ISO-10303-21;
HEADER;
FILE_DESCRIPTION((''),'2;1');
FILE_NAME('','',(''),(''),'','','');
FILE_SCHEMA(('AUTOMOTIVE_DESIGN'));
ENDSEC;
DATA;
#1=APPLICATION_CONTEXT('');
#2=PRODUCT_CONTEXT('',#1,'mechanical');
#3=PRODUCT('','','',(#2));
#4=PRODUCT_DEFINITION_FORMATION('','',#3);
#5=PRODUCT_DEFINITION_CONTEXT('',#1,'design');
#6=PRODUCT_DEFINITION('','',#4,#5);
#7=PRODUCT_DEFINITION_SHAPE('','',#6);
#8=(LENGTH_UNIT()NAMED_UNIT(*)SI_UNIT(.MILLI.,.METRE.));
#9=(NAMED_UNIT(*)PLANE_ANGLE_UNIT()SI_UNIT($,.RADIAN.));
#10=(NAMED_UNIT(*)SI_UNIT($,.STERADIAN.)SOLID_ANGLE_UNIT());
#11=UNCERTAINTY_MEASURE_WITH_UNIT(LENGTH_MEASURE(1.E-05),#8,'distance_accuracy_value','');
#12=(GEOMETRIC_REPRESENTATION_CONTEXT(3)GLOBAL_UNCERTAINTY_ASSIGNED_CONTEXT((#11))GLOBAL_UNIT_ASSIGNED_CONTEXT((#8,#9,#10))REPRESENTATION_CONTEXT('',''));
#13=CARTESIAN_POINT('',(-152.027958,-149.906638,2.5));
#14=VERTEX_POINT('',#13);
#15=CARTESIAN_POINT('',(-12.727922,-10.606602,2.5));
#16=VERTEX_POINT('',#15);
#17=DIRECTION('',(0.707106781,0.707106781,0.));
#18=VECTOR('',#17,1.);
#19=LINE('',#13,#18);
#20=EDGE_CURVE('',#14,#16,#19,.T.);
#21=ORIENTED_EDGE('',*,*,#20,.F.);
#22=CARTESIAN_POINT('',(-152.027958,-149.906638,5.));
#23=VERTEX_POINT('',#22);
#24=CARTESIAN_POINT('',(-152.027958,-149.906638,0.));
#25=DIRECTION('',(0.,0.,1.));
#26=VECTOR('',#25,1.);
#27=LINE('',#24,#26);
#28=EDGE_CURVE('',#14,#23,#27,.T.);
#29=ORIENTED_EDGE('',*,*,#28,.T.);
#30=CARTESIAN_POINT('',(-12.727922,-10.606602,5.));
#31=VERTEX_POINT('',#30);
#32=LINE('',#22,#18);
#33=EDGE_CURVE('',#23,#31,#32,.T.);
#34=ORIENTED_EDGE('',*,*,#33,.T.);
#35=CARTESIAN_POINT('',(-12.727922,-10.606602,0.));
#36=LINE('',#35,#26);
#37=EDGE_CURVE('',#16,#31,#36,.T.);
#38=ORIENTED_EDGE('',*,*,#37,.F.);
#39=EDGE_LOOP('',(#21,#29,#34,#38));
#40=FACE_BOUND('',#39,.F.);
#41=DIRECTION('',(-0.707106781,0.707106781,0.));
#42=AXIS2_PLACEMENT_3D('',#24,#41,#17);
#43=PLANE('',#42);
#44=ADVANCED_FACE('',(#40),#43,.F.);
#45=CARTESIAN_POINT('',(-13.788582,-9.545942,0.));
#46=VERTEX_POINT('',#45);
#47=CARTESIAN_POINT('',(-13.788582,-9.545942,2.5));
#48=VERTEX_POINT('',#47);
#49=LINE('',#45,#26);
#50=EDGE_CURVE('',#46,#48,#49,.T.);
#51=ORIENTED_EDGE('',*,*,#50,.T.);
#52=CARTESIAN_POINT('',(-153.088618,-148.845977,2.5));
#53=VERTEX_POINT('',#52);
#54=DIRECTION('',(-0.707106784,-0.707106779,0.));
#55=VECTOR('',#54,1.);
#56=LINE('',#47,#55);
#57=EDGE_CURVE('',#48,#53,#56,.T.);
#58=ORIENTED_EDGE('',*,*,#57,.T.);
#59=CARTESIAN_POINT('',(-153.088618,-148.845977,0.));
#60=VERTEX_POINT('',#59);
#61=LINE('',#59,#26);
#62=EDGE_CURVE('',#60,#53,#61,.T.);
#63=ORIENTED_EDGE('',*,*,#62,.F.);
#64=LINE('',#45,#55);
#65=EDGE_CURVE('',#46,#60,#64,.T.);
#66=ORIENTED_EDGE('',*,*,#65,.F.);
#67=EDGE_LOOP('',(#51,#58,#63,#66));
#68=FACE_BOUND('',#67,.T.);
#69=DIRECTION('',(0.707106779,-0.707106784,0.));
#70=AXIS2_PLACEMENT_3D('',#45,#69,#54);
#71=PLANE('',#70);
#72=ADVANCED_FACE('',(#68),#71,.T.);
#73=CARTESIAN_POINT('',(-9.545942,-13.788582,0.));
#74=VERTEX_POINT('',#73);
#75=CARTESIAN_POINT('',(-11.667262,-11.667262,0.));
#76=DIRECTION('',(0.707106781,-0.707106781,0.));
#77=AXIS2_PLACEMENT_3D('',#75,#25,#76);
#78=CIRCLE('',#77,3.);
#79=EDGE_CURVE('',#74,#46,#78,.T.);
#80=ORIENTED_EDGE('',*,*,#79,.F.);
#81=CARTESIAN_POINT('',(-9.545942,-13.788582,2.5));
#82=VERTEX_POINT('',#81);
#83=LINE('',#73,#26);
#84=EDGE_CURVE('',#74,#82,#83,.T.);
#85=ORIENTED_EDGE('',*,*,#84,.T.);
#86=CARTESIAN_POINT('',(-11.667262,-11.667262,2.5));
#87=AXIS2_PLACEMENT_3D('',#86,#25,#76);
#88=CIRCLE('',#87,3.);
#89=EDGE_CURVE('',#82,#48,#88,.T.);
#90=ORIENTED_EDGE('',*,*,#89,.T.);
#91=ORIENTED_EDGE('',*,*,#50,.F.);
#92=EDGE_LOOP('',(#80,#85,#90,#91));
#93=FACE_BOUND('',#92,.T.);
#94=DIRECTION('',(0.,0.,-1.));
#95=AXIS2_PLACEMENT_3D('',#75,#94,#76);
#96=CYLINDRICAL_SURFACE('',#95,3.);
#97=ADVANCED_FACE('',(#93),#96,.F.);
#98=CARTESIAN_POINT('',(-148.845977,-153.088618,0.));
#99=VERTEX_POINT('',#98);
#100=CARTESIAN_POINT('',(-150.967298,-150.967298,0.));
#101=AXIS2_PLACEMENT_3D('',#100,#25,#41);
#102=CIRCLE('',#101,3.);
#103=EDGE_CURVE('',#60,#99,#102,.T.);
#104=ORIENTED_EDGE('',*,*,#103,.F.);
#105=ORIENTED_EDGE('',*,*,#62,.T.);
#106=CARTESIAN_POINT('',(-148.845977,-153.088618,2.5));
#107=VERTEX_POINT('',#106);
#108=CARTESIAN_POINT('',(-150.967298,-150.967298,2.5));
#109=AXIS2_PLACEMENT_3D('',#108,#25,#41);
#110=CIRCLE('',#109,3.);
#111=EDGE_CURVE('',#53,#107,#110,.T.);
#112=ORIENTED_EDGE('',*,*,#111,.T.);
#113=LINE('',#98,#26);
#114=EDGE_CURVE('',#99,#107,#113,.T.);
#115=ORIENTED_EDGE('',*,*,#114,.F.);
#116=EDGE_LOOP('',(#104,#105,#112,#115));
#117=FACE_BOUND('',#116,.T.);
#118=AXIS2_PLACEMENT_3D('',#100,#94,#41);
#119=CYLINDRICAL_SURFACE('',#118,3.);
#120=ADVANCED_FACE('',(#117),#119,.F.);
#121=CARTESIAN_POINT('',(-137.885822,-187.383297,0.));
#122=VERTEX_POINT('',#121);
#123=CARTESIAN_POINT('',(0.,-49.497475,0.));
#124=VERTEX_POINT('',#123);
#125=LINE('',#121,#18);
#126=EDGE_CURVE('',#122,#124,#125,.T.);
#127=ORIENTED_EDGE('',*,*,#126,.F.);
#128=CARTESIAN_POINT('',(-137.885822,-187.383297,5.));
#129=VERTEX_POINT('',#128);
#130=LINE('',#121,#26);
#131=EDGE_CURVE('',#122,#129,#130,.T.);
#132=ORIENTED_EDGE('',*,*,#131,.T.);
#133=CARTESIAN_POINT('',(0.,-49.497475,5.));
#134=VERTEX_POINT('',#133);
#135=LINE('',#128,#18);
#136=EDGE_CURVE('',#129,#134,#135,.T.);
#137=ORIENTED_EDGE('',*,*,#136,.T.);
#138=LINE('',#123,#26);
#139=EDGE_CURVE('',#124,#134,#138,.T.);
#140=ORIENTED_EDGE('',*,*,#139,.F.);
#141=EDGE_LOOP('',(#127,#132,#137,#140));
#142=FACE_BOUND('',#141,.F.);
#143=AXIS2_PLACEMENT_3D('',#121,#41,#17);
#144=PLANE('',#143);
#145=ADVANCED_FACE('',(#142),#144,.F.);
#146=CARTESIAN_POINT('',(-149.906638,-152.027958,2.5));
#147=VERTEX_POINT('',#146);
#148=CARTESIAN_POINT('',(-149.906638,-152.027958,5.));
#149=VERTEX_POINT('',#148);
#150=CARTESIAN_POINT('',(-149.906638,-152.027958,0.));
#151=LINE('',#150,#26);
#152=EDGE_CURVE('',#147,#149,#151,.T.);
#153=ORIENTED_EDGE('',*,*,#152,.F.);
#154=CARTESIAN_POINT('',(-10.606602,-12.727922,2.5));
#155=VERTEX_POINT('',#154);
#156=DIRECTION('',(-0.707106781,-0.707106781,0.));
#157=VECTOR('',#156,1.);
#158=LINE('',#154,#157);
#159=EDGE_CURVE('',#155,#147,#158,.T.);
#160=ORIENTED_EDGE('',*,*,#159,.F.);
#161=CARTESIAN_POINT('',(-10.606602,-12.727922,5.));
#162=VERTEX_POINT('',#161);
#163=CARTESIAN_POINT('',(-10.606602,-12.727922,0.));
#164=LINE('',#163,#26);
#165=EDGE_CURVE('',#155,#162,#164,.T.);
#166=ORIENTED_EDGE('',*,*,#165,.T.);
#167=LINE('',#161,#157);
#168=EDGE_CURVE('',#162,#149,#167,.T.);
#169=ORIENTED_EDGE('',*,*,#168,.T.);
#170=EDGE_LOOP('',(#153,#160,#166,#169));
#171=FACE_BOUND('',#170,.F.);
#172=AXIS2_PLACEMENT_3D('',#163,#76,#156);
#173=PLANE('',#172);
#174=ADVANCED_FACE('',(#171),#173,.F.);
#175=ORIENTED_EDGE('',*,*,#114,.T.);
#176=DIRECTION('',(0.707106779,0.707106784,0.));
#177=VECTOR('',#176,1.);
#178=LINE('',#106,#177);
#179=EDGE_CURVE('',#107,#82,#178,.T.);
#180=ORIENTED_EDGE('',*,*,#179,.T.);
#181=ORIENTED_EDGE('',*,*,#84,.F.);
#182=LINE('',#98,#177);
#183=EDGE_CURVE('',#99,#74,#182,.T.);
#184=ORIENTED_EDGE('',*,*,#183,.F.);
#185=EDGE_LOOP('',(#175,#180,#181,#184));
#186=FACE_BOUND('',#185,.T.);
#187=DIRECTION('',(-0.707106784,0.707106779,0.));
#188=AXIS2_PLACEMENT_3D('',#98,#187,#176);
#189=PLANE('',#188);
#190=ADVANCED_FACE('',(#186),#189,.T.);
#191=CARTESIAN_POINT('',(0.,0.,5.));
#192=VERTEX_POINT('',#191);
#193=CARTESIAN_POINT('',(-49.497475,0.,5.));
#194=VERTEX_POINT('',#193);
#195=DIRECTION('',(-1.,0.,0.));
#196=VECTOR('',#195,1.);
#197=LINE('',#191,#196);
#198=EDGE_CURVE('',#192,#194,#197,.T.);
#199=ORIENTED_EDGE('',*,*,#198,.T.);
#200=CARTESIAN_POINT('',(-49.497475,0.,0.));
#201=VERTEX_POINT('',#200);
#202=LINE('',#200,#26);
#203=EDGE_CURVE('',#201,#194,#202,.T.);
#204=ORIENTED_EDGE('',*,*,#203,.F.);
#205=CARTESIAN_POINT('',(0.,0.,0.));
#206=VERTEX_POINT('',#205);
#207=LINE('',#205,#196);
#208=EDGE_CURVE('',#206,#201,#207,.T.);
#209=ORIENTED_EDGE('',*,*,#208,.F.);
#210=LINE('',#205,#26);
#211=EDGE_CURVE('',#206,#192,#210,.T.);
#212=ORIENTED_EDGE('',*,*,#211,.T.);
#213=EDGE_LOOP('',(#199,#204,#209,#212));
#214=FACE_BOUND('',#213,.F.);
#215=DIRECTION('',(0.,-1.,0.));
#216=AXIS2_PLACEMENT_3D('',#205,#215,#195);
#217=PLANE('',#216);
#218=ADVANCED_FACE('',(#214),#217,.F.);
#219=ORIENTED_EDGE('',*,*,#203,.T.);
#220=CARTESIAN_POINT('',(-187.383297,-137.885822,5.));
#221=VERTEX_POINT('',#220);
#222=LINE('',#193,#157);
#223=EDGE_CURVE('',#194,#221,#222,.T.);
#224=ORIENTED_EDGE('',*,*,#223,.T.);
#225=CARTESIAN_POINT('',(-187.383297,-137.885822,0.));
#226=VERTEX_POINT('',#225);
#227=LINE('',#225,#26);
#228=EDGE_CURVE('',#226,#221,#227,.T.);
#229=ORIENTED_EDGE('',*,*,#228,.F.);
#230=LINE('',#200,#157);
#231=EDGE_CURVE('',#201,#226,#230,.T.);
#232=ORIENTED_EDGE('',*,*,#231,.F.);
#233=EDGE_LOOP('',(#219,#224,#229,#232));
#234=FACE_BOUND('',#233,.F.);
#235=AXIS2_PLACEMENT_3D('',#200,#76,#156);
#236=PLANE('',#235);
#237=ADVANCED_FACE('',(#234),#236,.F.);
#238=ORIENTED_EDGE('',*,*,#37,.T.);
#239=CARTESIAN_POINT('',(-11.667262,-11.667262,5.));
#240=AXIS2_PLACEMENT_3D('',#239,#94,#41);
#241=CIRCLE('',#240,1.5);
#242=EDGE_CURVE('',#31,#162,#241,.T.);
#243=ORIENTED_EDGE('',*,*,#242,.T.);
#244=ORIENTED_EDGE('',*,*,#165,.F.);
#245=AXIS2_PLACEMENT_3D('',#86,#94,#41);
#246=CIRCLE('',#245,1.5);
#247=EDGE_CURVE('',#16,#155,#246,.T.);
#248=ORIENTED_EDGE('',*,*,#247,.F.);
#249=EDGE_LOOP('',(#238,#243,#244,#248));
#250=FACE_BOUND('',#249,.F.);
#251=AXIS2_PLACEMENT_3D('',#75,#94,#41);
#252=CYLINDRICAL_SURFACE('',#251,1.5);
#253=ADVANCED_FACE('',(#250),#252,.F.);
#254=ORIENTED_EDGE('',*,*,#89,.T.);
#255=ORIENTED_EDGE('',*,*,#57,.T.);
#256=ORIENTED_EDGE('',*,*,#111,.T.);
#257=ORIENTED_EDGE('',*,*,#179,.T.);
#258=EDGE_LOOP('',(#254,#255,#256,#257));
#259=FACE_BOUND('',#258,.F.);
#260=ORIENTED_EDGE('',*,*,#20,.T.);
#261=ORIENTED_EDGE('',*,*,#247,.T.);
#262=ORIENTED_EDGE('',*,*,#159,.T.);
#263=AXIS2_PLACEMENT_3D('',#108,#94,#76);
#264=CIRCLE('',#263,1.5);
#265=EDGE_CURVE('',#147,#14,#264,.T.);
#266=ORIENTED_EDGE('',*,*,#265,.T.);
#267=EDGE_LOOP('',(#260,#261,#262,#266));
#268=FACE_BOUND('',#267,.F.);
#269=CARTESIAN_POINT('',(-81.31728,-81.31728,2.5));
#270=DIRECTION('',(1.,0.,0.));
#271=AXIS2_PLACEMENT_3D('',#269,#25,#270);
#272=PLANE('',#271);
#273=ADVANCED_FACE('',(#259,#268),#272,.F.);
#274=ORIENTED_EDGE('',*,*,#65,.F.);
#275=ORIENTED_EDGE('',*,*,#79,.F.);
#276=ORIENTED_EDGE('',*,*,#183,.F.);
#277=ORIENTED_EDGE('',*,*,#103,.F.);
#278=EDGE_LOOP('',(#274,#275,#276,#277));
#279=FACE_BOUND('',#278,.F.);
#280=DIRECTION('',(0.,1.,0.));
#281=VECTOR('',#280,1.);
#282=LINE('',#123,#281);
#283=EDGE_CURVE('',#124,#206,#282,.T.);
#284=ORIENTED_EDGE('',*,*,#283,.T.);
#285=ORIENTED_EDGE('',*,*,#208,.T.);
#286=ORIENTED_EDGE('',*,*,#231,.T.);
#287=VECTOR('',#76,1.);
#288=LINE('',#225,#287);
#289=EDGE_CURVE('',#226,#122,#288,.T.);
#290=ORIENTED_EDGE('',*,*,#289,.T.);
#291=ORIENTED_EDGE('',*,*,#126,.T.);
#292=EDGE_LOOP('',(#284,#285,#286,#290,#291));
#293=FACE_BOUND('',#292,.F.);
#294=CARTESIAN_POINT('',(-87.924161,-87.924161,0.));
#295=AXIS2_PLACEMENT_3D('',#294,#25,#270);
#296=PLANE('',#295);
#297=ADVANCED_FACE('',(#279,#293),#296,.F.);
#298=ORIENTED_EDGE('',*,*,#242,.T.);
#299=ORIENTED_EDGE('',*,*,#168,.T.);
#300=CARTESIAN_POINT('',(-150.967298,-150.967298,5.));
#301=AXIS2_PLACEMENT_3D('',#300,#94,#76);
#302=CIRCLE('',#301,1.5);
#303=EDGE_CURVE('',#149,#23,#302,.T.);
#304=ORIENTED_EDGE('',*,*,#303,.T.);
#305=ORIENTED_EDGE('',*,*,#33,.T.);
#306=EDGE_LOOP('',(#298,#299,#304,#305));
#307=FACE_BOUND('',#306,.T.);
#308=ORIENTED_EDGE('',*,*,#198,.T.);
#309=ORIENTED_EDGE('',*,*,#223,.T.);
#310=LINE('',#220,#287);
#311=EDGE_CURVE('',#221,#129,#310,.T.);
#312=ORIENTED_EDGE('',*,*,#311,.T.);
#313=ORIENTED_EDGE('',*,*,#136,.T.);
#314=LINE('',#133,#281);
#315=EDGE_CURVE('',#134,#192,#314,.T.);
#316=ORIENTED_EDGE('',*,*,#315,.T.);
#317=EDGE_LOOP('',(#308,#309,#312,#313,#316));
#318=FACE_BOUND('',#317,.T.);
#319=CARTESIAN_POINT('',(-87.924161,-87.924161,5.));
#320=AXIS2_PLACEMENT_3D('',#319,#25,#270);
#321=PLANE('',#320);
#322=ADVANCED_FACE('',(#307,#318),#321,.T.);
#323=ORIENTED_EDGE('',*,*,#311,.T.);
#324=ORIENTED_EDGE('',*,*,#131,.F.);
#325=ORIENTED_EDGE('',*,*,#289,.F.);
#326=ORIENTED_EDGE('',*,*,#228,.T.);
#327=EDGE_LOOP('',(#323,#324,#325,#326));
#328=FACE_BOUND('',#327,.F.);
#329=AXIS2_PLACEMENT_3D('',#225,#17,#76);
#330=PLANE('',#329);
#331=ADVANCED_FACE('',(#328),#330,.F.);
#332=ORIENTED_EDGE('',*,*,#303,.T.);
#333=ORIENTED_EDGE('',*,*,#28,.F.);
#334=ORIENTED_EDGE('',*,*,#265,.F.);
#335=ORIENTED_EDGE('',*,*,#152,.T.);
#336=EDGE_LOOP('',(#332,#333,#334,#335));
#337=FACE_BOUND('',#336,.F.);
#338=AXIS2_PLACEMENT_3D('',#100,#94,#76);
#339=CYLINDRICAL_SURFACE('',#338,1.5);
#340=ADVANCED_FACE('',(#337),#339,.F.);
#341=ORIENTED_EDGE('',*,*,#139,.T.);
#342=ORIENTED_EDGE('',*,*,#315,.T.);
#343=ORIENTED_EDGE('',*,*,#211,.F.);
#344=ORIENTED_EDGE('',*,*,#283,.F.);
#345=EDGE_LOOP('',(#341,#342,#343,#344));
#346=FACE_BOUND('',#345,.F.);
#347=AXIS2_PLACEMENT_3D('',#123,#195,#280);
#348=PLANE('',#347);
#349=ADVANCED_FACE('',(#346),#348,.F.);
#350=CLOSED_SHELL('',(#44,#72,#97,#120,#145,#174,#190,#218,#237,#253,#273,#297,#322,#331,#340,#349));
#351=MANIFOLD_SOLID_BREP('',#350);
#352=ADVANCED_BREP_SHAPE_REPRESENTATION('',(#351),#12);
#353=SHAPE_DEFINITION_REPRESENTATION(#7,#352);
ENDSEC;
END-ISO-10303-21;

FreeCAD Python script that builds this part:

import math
import FreeCAD as App
import Part
import Sketcher
Q = App.Units.Quantity

doc = App.newDocument("Part")
body = doc.addObject("PartDesign::Body", "Body")

# Sketch on XY plane
sketch1 = body.newObject("Sketcher::SketchObject", "Sketch")
sketch1.AttachmentSupport = (doc.getObject("XY_Plane"), [""])
sketch1.MapMode = "FlatFace"
sketch1.addGeometry(Part.LineSegment(App.Vector(-49.5, 0, 0), App.Vector(-187.4, -137.9, 0)), False)
sketch1.addGeometry(Part.LineSegment(App.Vector(-187.4, -137.9, 0), App.Vector(-137.9, -187.4, 0)), False)
sketch1.addGeometry(Part.LineSegment(App.Vector(-137.9, -187.4, 0), App.Vector(0, -49.5, 0)), False)
sketch1.addGeometry(Part.LineSegment(App.Vector(0, -49.5, 0), App.Vector(0, 0, 0)), False)
sketch1.addGeometry(Part.LineSegment(App.Vector(0, 0, 0), App.Vector(-49.5, 0, 0)), False)
sketch1.addGeometry(Part.ArcOfCircle(Part.Circle(App.Vector(-11.7, -11.7, 0), App.Vector(0, 0, 1), 1.5), math.radians(-45), math.radians(135)), False)
sketch1.addGeometry(Part.LineSegment(App.Vector(-10.6, -12.7, 0), App.Vector(-149.9, -152, 0)), False)
sketch1.addGeometry(Part.ArcOfCircle(Part.Circle(App.Vector(-151, -151, 0), App.Vector(0, 0, 1), 1.5), math.radians(135), math.radians(315)), False)
sketch1.addGeometry(Part.LineSegment(App.Vector(-152, -149.9, 0), App.Vector(-12.7, -10.6, 0)), False)
sketch1.addConstraint(Sketcher.Constraint("Coincident", 0, 2, 1, 1))
sketch1.addConstraint(Sketcher.Constraint("Coincident", 1, 2, 2, 1))
sketch1.addConstraint(Sketcher.Constraint("Coincident", 2, 2, 3, 1))
sketch1.addConstraint(Sketcher.Constraint("Coincident", 3, 2, 4, 1))
sketch1.addConstraint(Sketcher.Constraint("Coincident", 4, 2, 0, 1))
sketch1.addConstraint(Sketcher.Constraint("Tangent", 5, 1, 6, 1))
sketch1.addConstraint(Sketcher.Constraint("Tangent", 6, 2, 7, 2))
sketch1.addConstraint(Sketcher.Constraint("Tangent", 7, 1, 8, 1))
sketch1.addConstraint(Sketcher.Constraint("Tangent", 8, 2, 5, 2))
sketch1.addConstraint(Sketcher.Constraint("Vertical", 3))
sketch1.addConstraint(Sketcher.Constraint("Horizontal", 4))
sketch1.addConstraint(Sketcher.Constraint("Coincident", 3, 2, -1, 1))
sketch1.addConstraint(Sketcher.Constraint("Equal", 5, 7))
sketch1.addConstraint(Sketcher.Constraint("Perpendicular", 0, 1))
sketch1.addConstraint(Sketcher.Constraint("Perpendicular", 1, 2))
sketch1.addConstraint(Sketcher.Constraint("Parallel", 2, 6))
sketch1.addConstraint(Sketcher.Constraint("Equal", 4, 3))
sketch1.addConstraint(Sketcher.Constraint("Equal", 0, 2))
sketch1.addConstraint(Sketcher.Constraint("Radius", 5, 1.5))
sketch1.addConstraint(Sketcher.Constraint("Distance", 0, 195.0))
sketch1.addConstraint(Sketcher.Constraint("Distance", 1, 70.0))
sketch1.addConstraint(Sketcher.Constraint("Distance", 6, 197.0))
sketch1.addConstraint(Sketcher.Constraint("DistanceX", 0, 2, 7, 3, 36.415999))
sketch1.addConstraint(Sketcher.Constraint("DistanceY", 1, 2, 7, 3, 36.415999))
pad1 = body.newObject("PartDesign::Pad", "Pad")
pad1.Profile = sketch1
pad1.Length = 5

# Sketch on XY plane
sketch2 = body.newObject("Sketcher::SketchObject", "Sketch001")
sketch2.AttachmentSupport = (doc.getObject("XY_Plane"), [""])
sketch2.MapMode = "FlatFace"
sketch2.addGeometry(Part.ArcOfCircle(Part.Circle(App.Vector(-11.7, -11.7, 0), App.Vector(0, 0, 1), 3), math.radians(-45), math.radians(135)), False)
sketch2.addGeometry(Part.LineSegment(App.Vector(-13.8, -9.5, 0), App.Vector(-153.1, -148.8, 0)), False)
sketch2.addGeometry(Part.ArcOfCircle(Part.Circle(App.Vector(-151, -151, 0), App.Vector(0, 0, 1), 3), math.radians(135), math.radians(315)), False)
sketch2.addGeometry(Part.LineSegment(App.Vector(-148.8, -153.1, 0), App.Vector(-9.5, -13.8, 0)), False)
sketch2.addGeometry(Part.ArcOfCircle(Part.Circle(App.Vector(-11.7, -11.7, 0), App.Vector(0, 0, 1), 1.5), math.radians(-45), math.radians(135)), False)
sketch2.addGeometry(Part.LineSegment(App.Vector(-10.6, -12.7, 0), App.Vector(-149.9, -152, 0)), False)
sketch2.addGeometry(Part.ArcOfCircle(Part.Circle(App.Vector(-151, -151, 0), App.Vector(0, 0, 1), 1.5), math.radians(135), math.radians(315)), False)
sketch2.addGeometry(Part.LineSegment(App.Vector(-152, -149.9, 0), App.Vector(-12.7, -10.6, 0)), False)
sketch2.addConstraint(Sketcher.Constraint("Tangent", 0, 2, 1, 1))
sketch2.addConstraint(Sketcher.Constraint("Tangent", 1, 2, 2, 1))
sketch2.addConstraint(Sketcher.Constraint("Tangent", 2, 2, 3, 1))
sketch2.addConstraint(Sketcher.Constraint("Tangent", 3, 2, 0, 1))
sketch2.addConstraint(Sketcher.Constraint("Tangent", 4, 1, 5, 1))
sketch2.addConstraint(Sketcher.Constraint("Tangent", 5, 2, 6, 2))
sketch2.addConstraint(Sketcher.Constraint("Tangent", 6, 1, 7, 1))
sketch2.addConstraint(Sketcher.Constraint("Tangent", 7, 2, 4, 2))
sketch2.addConstraint(Sketcher.Constraint("Coincident", 4, 3, 0, 3))
sketch2.addConstraint(Sketcher.Constraint("Coincident", 6, 3, 2, 3))
sketch2.addConstraint(Sketcher.Constraint("Equal", 0, 2))
sketch2.addConstraint(Sketcher.Constraint("Equal", 4, 6))
sketch2.addConstraint(Sketcher.Constraint("Radius", 0, 3.0))
sketch2.addConstraint(Sketcher.Constraint("Radius", 4, 1.5))
sketch2.addConstraint(Sketcher.Constraint("Angle", 1, Q("-135 deg")))
sketch2.addConstraint(Sketcher.Constraint("Distance", 1, 196.999999))
sketch2.addConstraint(Sketcher.Constraint("DistanceX", 6, 3, -1, 1, 150.967298))
sketch2.addConstraint(Sketcher.Constraint("DistanceY", 6, 3, -1, 1, 150.967298))
pocket1 = body.newObject("PartDesign::Pocket", "Pocket")
pocket1.Profile = sketch2
pocket1.Length = 2.5
pocket1.Reversed = True

doc.recompute()
